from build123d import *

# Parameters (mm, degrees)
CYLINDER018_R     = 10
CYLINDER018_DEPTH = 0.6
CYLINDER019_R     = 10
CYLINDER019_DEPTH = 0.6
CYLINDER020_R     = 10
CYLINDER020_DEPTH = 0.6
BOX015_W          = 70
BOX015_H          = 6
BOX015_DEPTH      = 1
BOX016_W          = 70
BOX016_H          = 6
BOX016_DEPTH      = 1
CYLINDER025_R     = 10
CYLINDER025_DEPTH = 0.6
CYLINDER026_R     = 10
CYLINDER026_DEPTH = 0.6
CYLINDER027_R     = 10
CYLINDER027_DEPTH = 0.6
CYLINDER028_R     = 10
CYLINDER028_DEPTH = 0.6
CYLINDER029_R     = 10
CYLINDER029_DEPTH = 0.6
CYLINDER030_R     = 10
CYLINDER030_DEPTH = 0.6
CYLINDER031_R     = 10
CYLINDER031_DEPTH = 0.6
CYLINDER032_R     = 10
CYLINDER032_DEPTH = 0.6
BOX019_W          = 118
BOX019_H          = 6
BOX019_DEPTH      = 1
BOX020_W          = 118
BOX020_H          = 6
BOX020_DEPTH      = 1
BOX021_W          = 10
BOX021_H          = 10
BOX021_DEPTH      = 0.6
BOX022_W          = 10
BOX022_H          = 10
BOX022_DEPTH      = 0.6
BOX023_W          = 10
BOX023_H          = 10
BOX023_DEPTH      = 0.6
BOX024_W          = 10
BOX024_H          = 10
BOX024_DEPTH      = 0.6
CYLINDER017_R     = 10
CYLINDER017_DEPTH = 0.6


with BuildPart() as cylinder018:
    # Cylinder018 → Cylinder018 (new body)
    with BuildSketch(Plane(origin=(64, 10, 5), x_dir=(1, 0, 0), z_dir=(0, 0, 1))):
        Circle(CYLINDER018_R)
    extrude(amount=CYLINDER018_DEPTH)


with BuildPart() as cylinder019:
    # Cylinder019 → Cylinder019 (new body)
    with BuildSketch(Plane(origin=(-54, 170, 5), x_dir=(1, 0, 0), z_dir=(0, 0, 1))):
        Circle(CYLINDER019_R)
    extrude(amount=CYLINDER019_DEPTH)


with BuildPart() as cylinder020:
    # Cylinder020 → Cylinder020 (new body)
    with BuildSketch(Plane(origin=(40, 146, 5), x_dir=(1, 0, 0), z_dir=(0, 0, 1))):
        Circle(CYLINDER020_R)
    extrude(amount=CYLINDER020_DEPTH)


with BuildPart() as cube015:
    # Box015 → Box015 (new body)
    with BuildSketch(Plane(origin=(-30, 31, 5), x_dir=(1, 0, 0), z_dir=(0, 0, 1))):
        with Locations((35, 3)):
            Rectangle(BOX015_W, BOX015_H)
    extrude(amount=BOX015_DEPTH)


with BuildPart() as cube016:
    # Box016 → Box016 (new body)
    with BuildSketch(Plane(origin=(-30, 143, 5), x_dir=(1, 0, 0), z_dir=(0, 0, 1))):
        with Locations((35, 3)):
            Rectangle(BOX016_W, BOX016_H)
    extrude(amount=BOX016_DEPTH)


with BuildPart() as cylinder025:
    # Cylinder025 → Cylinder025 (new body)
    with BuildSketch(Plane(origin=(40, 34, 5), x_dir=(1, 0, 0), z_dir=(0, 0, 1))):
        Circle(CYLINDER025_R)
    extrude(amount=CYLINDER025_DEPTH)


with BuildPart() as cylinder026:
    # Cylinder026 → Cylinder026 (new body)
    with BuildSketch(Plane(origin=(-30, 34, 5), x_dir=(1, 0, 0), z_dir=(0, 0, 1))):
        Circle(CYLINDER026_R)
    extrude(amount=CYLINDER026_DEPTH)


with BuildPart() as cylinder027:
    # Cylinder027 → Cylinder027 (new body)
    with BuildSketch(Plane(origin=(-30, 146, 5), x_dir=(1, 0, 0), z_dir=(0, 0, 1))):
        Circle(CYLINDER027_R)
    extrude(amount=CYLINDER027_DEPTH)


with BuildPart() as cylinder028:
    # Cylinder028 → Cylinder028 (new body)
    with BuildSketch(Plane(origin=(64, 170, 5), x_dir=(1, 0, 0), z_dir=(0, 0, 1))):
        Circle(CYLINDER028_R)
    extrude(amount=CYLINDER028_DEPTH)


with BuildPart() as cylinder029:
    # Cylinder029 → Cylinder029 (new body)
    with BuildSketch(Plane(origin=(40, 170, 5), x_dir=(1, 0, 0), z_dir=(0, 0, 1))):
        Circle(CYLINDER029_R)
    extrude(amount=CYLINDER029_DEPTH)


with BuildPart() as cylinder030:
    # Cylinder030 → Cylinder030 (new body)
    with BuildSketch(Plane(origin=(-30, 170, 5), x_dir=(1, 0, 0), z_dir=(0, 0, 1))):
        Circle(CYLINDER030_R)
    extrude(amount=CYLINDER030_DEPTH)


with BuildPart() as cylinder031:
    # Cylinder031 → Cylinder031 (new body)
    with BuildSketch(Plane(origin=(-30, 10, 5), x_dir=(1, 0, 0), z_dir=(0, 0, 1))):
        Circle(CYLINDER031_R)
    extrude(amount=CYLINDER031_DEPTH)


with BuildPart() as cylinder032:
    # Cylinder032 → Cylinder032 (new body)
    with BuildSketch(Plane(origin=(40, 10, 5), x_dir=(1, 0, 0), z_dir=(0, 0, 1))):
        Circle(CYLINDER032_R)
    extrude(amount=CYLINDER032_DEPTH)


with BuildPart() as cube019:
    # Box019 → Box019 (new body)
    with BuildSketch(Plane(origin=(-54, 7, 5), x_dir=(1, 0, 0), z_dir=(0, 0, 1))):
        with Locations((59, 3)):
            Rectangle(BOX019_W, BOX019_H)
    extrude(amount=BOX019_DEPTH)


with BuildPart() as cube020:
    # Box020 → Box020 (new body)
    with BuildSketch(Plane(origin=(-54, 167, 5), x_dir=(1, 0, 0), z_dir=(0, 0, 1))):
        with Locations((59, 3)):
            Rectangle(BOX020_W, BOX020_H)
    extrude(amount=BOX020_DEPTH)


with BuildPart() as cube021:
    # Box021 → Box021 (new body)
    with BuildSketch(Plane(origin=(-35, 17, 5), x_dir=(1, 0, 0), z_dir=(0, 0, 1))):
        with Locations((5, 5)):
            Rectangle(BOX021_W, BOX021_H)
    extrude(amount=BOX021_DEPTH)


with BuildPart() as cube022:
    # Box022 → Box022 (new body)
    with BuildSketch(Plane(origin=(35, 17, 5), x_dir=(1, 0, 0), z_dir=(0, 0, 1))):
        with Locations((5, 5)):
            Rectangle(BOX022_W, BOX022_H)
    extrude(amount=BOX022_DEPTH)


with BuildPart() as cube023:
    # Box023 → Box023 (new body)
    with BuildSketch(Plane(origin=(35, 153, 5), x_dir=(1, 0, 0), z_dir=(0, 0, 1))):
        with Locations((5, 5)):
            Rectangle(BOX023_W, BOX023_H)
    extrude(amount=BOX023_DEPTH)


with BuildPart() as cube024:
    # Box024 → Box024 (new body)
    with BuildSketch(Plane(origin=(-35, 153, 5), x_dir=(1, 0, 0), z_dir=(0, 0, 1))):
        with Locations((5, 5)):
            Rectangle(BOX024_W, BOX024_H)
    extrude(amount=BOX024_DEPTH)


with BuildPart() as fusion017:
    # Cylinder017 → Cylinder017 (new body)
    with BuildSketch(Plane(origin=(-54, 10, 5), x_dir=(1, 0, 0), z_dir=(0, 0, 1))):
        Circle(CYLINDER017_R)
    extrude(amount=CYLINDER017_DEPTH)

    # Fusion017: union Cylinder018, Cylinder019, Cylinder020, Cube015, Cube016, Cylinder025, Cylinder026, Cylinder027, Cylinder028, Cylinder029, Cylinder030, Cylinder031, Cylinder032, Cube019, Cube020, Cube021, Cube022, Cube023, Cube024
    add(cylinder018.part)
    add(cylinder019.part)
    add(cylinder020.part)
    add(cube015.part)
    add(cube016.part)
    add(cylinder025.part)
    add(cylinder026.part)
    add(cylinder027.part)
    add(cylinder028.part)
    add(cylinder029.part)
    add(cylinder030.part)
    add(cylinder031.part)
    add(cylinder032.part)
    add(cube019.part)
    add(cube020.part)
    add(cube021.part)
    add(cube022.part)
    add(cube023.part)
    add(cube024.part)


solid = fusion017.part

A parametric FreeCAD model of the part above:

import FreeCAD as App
import Part
import Sketcher

V = App.Vector

doc = App.newDocument("Part")
body = doc.addObject("PartDesign::Body", "Body")

sketch1 = body.newObject("Sketcher::SketchObject", "Sketch")
sketch1.AttachmentSupport = (doc.getObject("XY_Plane"), [""])
sketch1.MapMode = "FlatFace"
sketch1.AttachmentOffset = App.Placement(V(0, 0, 5), App.Rotation())
sketch1.addGeometry(Part.Circle(V(64, 10, 0), V(0, 0, 1), 10), False)
sketch1.addConstraint(Sketcher.Constraint("Diameter", 0, 20.0))
sketch1.addConstraint(Sketcher.Constraint("DistanceX", -1, 1, 0, 3, 64.0))
sketch1.addConstraint(Sketcher.Constraint("DistanceY", -1, 1, 0, 3, 10.0))
pad1 = body.newObject("PartDesign::Pad", "Pad")
pad1.Profile = sketch1
pad1.Length = 0.6
body2 = doc.addObject("PartDesign::Body", "Body001")

sketch2 = body2.newObject("Sketcher::SketchObject", "Sketch001")
sketch2.AttachmentSupport = (doc.getObject("XY_Plane001"), [""])
sketch2.MapMode = "FlatFace"
sketch2.AttachmentOffset = App.Placement(V(0, 0, 5), App.Rotation())
sketch2.addGeometry(Part.Circle(V(-54, 170, 0), V(0, 0, 1), 10), False)
sketch2.addConstraint(Sketcher.Constraint("Diameter", 0, 20.0))
sketch2.addConstraint(Sketcher.Constraint("DistanceX", 0, 3, -1, 1, 54.0))
sketch2.addConstraint(Sketcher.Constraint("DistanceY", -1, 1, 0, 3, 170.0))
pad2 = body2.newObject("PartDesign::Pad", "Pad001")
pad2.Profile = sketch2
pad2.Length = 0.6
body3 = doc.addObject("PartDesign::Body", "Body002")

sketch3 = body3.newObject("Sketcher::SketchObject", "Sketch002")
sketch3.AttachmentSupport = (doc.getObject("XY_Plane002"), [""])
sketch3.MapMode = "FlatFace"
sketch3.AttachmentOffset = App.Placement(V(0, 0, 5), App.Rotation())
sketch3.addGeometry(Part.Circle(V(40, 146, 0), V(0, 0, 1), 10), False)
sketch3.addConstraint(Sketcher.Constraint("Diameter", 0, 20.0))
sketch3.addConstraint(Sketcher.Constraint("DistanceX", -1, 1, 0, 3, 40.0))
sketch3.addConstraint(Sketcher.Constraint("DistanceY", -1, 1, 0, 3, 146.0))
pad3 = body3.newObject("PartDesign::Pad", "Pad002")
pad3.Profile = sketch3
pad3.Length = 0.6
body4 = doc.addObject("PartDesign::Body", "Body003")

sketch4 = body4.newObject("Sketcher::SketchObject", "Sketch003")
sketch4.AttachmentSupport = (doc.getObject("XY_Plane003"), [""])
sketch4.MapMode = "FlatFace"
sketch4.AttachmentOffset = App.Placement(V(0, 0, 5), App.Rotation())
sketch4.addGeometry(Part.LineSegment(V(-30, 37, 0), V(-30, 31, 0)), False)
sketch4.addGeometry(Part.LineSegment(V(-30, 31, 0), V(40, 31, 0)), False)
sketch4.addGeometry(Part.LineSegment(V(40, 31, 0), V(40, 37, 0)), False)
sketch4.addGeometry(Part.LineSegment(V(40, 37, 0), V(-30, 37, 0)), False)
sketch4.addConstraint(Sketcher.Constraint("Coincident", 0, 2, 1, 1))
sketch4.addConstraint(Sketcher.Constraint("Coincident", 1, 2, 2, 1))
sketch4.addConstraint(Sketcher.Constraint("Coincident", 2, 2, 3, 1))
sketch4.addConstraint(Sketcher.Constraint("Coincident", 3, 2, 0, 1))
sketch4.addConstraint(Sketcher.Constraint("Vertical", 0))
sketch4.addConstraint(Sketcher.Constraint("Horizontal", 1))
sketch4.addConstraint(Sketcher.Constraint("Vertical", 2))
sketch4.addConstraint(Sketcher.Constraint("Horizontal", 3))
sketch4.addConstraint(Sketcher.Constraint("DistanceX", 1, 1, 1, 2, 70.0))
sketch4.addConstraint(Sketcher.Constraint("DistanceY", 0, 2, 0, 1, 6.0))
sketch4.addConstraint(Sketcher.Constraint("DistanceX", 0, 2, -1, 1, 30.0))
sketch4.addConstraint(Sketcher.Constraint("DistanceY", -1, 1, 0, 2, 31.0))
pad4 = body4.newObject("PartDesign::Pad", "Pad003")
pad4.Profile = sketch4
pad4.Length = 1
body5 = doc.addObject("PartDesign::Body", "Body004")

sketch5 = body5.newObject("Sketcher::SketchObject", "Sketch004")
sketch5.AttachmentSupport = (doc.getObject("XY_Plane004"), [""])
sketch5.MapMode = "FlatFace"
sketch5.AttachmentOffset = App.Placement(V(0, 0, 5), App.Rotation())
sketch5.addGeometry(Part.LineSegment(V(-30, 149, 0), V(-30, 143, 0)), False)
sketch5.addGeometry(Part.LineSegment(V(-30, 143, 0), V(40, 143, 0)), False)
sketch5.addGeometry(Part.LineSegment(V(40, 143, 0), V(40, 149, 0)), False)
sketch5.addGeometry(Part.LineSegment(V(40, 149, 0), V(-30, 149, 0)), False)
sketch5.addConstraint(Sketcher.Constraint("Coincident", 0, 2, 1, 1))
sketch5.addConstraint(Sketcher.Constraint("Coincident", 1, 2, 2, 1))
sketch5.addConstraint(Sketcher.Constraint("Coincident", 2, 2, 3, 1))
sketch5.addConstraint(Sketcher.Constraint("Coincident", 3, 2, 0, 1))
sketch5.addConstraint(Sketcher.Constraint("Vertical", 0))
sketch5.addConstraint(Sketcher.Constraint("Horizontal", 1))
sketch5.addConstraint(Sketcher.Constraint("Vertical", 2))
sketch5.addConstraint(Sketcher.Constraint("Horizontal", 3))
sketch5.addConstraint(Sketcher.Constraint("DistanceX", 1, 1, 1, 2, 70.0))
sketch5.addConstraint(Sketcher.Constraint("DistanceY", 0, 2, 0, 1, 6.0))
sketch5.addConstraint(Sketcher.Constraint("DistanceX", 0, 2, -1, 1, 30.0))
sketch5.addConstraint(Sketcher.Constraint("DistanceY", -1, 1, 0, 2, 143.0))
pad5 = body5.newObject("PartDesign::Pad", "Pad004")
pad5.Profile = sketch5
pad5.Length = 1
body6 = doc.addObject("PartDesign::Body", "Body005")

sketch6 = body6.newObject("Sketcher::SketchObject", "Sketch005")
sketch6.AttachmentSupport = (doc.getObject("XY_Plane005"), [""])
sketch6.MapMode = "FlatFace"
sketch6.AttachmentOffset = App.Placement(V(0, 0, 5), App.Rotation())
sketch6.addGeometry(Part.Circle(V(40, 34, 0), V(0, 0, 1), 10), False)
sketch6.addConstraint(Sketcher.Constraint("Diameter", 0, 20.0))
sketch6.addConstraint(Sketcher.Constraint("DistanceX", -1, 1, 0, 3, 40.0))
sketch6.addConstraint(Sketcher.Constraint("DistanceY", -1, 1, 0, 3, 34.0))
pad6 = body6.newObject("PartDesign::Pad", "Pad005")
pad6.Profile = sketch6
pad6.Length = 0.6
body7 = doc.addObject("PartDesign::Body", "Body006")

sketch7 = body7.newObject("Sketcher::SketchObject", "Sketch006")
sketch7.AttachmentSupport = (doc.getObject("XY_Plane006"), [""])
sketch7.MapMode = "FlatFace"
sketch7.AttachmentOffset = App.Placement(V(0, 0, 5), App.Rotation())
sketch7.addGeometry(Part.Circle(V(-30, 34, 0), V(0, 0, 1), 10), False)
sketch7.addConstraint(Sketcher.Constraint("Diameter", 0, 20.0))
sketch7.addConstraint(Sketcher.Constraint("DistanceX", 0, 3, -1, 1, 30.0))
sketch7.addConstraint(Sketcher.Constraint("DistanceY", -1, 1, 0, 3, 34.0))
pad7 = body7.newObject("PartDesign::Pad", "Pad006")
pad7.Profile = sketch7
pad7.Length = 0.6
body8 = doc.addObject("PartDesign::Body", "Body007")

sketch8 = body8.newObject("Sketcher::SketchObject", "Sketch007")
sketch8.AttachmentSupport = (doc.getObject("XY_Plane007"), [""])
sketch8.MapMode = "FlatFace"
sketch8.AttachmentOffset = App.Placement(V(0, 0, 5), App.Rotation())
sketch8.addGeometry(Part.Circle(V(-30, 146, 0), V(0, 0, 1), 10), False)
sketch8.addConstraint(Sketcher.Constraint("Diameter", 0, 20.0))
sketch8.addConstraint(Sketcher.Constraint("DistanceX", 0, 3, -1, 1, 30.0))
sketch8.addConstraint(Sketcher.Constraint("DistanceY", -1, 1, 0, 3, 146.0))
pad8 = body8.newObject("PartDesign::Pad", "Pad007")
pad8.Profile = sketch8
pad8.Length = 0.6
body9 = doc.addObject("PartDesign::Body", "Body008")

sketch9 = body9.newObject("Sketcher::SketchObject", "Sketch008")
sketch9.AttachmentSupport = (doc.getObject("XY_Plane008"), [""])
sketch9.MapMode = "FlatFace"
sketch9.AttachmentOffset = App.Placement(V(0, 0, 5), App.Rotation())
sketch9.addGeometry(Part.Circle(V(64, 170, 0), V(0, 0, 1), 10), False)
sketch9.addConstraint(Sketcher.Constraint("Diameter", 0, 20.0))
sketch9.addConstraint(Sketcher.Constraint("DistanceX", -1, 1, 0, 3, 64.0))
sketch9.addConstraint(Sketcher.Constraint("DistanceY", -1, 1, 0, 3, 170.0))
pad9 = body9.newObject("PartDesign::Pad", "Pad008")
pad9.Profile = sketch9
pad9.Length = 0.6
body10 = doc.addObject("PartDesign::Body", "Body009")

sketch10 = body10.newObject("Sketcher::SketchObject", "Sketch009")
sketch10.AttachmentSupport = (doc.getObject("XY_Plane009"), [""])
sketch10.MapMode = "FlatFace"
sketch10.AttachmentOffset = App.Placement(V(0, 0, 5), App.Rotation())
sketch10.addGeometry(Part.Circle(V(40, 170, 0), V(0, 0, 1), 10), False)
sketch10.addConstraint(Sketcher.Constraint("Diameter", 0, 20.0))
sketch10.addConstraint(Sketcher.Constraint("DistanceX", -1, 1, 0, 3, 40.0))
sketch10.addConstraint(Sketcher.Constraint("DistanceY", -1, 1, 0, 3, 170.0))
pad10 = body10.newObject("PartDesign::Pad", "Pad009")
pad10.Profile = sketch10
pad10.Length = 0.6
body11 = doc.addObject("PartDesign::Body", "Body010")

sketch11 = body11.newObject("Sketcher::SketchObject", "Sketch010")
sketch11.AttachmentSupport = (doc.getObject("XY_Plane010"), [""])
sketch11.MapMode = "FlatFace"
sketch11.AttachmentOffset = App.Placement(V(0, 0, 5), App.Rotation())
sketch11.addGeometry(Part.Circle(V(-30, 170, 0), V(0, 0, 1), 10), False)
sketch11.addConstraint(Sketcher.Constraint("Diameter", 0, 20.0))
sketch11.addConstraint(Sketcher.Constraint("DistanceX", 0, 3, -1, 1, 30.0))
sketch11.addConstraint(Sketcher.Constraint("DistanceY", -1, 1, 0, 3, 170.0))
pad11 = body11.newObject("PartDesign::Pad", "Pad010")
pad11.Profile = sketch11
pad11.Length = 0.6
body12 = doc.addObject("PartDesign::Body", "Body011")

sketch12 = body12.newObject("Sketcher::SketchObject", "Sketch011")
sketch12.AttachmentSupport = (doc.getObject("XY_Plane011"), [""])
sketch12.MapMode = "FlatFace"
sketch12.AttachmentOffset = App.Placement(V(0, 0, 5), App.Rotation())
sketch12.addGeometry(Part.Circle(V(-30, 10, 0), V(0, 0, 1), 10), False)
sketch12.addConstraint(Sketcher.Constraint("Diameter", 0, 20.0))
sketch12.addConstraint(Sketcher.Constraint("DistanceX", 0, 3, -1, 1, 30.0))
sketch12.addConstraint(Sketcher.Constraint("DistanceY", -1, 1, 0, 3, 10.0))
pad12 = body12.newObject("PartDesign::Pad", "Pad011")
pad12.Profile = sketch12
pad12.Length = 0.6
body13 = doc.addObject("PartDesign::Body", "Body012")

sketch13 = body13.newObject("Sketcher::SketchObject", "Sketch012")
sketch13.AttachmentSupport = (doc.getObject("XY_Plane012"), [""])
sketch13.MapMode = "FlatFace"
sketch13.AttachmentOffset = App.Placement(V(0, 0, 5), App.Rotation())
sketch13.addGeometry(Part.Circle(V(40, 10, 0), V(0, 0, 1), 10), False)
sketch13.addConstraint(Sketcher.Constraint("Diameter", 0, 20.0))
sketch13.addConstraint(Sketcher.Constraint("DistanceX", -1, 1, 0, 3, 40.0))
sketch13.addConstraint(Sketcher.Constraint("DistanceY", -1, 1, 0, 3, 10.0))
pad13 = body13.newObject("PartDesign::Pad", "Pad012")
pad13.Profile = sketch13
pad13.Length = 0.6
body14 = doc.addObject("PartDesign::Body", "Body013")

sketch14 = body14.newObject("Sketcher::SketchObject", "Sketch013")
sketch14.AttachmentSupport = (doc.getObject("XY_Plane013"), [""])
sketch14.MapMode = "FlatFace"
sketch14.AttachmentOffset = App.Placement(V(0, 0, 5), App.Rotation())
sketch14.addGeometry(Part.LineSegment(V(-54, 13, 0), V(-54, 7, 0)), False)
sketch14.addGeometry(Part.LineSegment(V(-54, 7, 0), V(64, 7, 0)), False)
sketch14.addGeometry(Part.LineSegment(V(64, 7, 0), V(64, 13, 0)), False)
sketch14.addGeometry(Part.LineSegment(V(64, 13, 0), V(-54, 13, 0)), False)
sketch14.addConstraint(Sketcher.Constraint("Coincident", 0, 2, 1, 1))
sketch14.addConstraint(Sketcher.Constraint("Coincident", 1, 2, 2, 1))
sketch14.addConstraint(Sketcher.Constraint("Coincident", 2, 2, 3, 1))
sketch14.addConstraint(Sketcher.Constraint("Coincident", 3, 2, 0, 1))
sketch14.addConstraint(Sketcher.Constraint("Vertical", 0))
sketch14.addConstraint(Sketcher.Constraint("Horizontal", 1))
sketch14.addConstraint(Sketcher.Constraint("Vertical", 2))
sketch14.addConstraint(Sketcher.Constraint("Horizontal", 3))
sketch14.addConstraint(Sketcher.Constraint("DistanceX", 1, 1, 1, 2, 118.0))
sketch14.addConstraint(Sketcher.Constraint("DistanceY", 0, 2, 0, 1, 6.0))
sketch14.addConstraint(Sketcher.Constraint("DistanceX", 0, 2, -1, 1, 54.0))
sketch14.addConstraint(Sketcher.Constraint("DistanceY", -1, 1, 0, 2, 7.0))
pad14 = body14.newObject("PartDesign::Pad", "Pad013")
pad14.Profile = sketch14
pad14.Length = 1
body15 = doc.addObject("PartDesign::Body", "Body014")

sketch15 = body15.newObject("Sketcher::SketchObject", "Sketch014")
sketch15.AttachmentSupport = (doc.getObject("XY_Plane014"), [""])
sketch15.MapMode = "FlatFace"
sketch15.AttachmentOffset = App.Placement(V(0, 0, 5), App.Rotation())
sketch15.addGeometry(Part.LineSegment(V(-54, 173, 0), V(-54, 167, 0)), False)
sketch15.addGeometry(Part.LineSegment(V(-54, 167, 0), V(64, 167, 0)), False)
sketch15.addGeometry(Part.LineSegment(V(64, 167, 0), V(64, 173, 0)), False)
sketch15.addGeometry(Part.LineSegment(V(64, 173, 0), V(-54, 173, 0)), False)
sketch15.addConstraint(Sketcher.Constraint("Coincident", 0, 2, 1, 1))
sketch15.addConstraint(Sketcher.Constraint("Coincident", 1, 2, 2, 1))
sketch15.addConstraint(Sketcher.Constraint("Coincident", 2, 2, 3, 1))
sketch15.addConstraint(Sketcher.Constraint("Coincident", 3, 2, 0, 1))
sketch15.addConstraint(Sketcher.Constraint("Vertical", 0))
sketch15.addConstraint(Sketcher.Constraint("Horizontal", 1))
sketch15.addConstraint(Sketcher.Constraint("Vertical", 2))
sketch15.addConstraint(Sketcher.Constraint("Horizontal", 3))
sketch15.addConstraint(Sketcher.Constraint("DistanceX", 1, 1, 1, 2, 118.0))
sketch15.addConstraint(Sketcher.Constraint("DistanceY", 0, 2, 0, 1, 6.0))
sketch15.addConstraint(Sketcher.Constraint("DistanceX", 0, 2, -1, 1, 54.0))
sketch15.addConstraint(Sketcher.Constraint("DistanceY", -1, 1, 0, 2, 167.0))
pad15 = body15.newObject("PartDesign::Pad", "Pad014")
pad15.Profile = sketch15
pad15.Length = 1
body16 = doc.addObject("PartDesign::Body", "Body015")

sketch16 = body16.newObject("Sketcher::SketchObject", "Sketch015")
sketch16.AttachmentSupport = (doc.getObject("XY_Plane015"), [""])
sketch16.MapMode = "FlatFace"
sketch16.AttachmentOffset = App.Placement(V(0, 0, 5), App.Rotation())
sketch16.addGeometry(Part.LineSegment(V(-35, 27, 0), V(-35, 17, 0)), False)
sketch16.addGeometry(Part.LineSegment(V(-35, 17, 0), V(-25, 17, 0)), False)
sketch16.addGeometry(Part.LineSegment(V(-25, 17, 0), V(-25, 27, 0)), False)
sketch16.addGeometry(Part.LineSegment(V(-25, 27, 0), V(-35, 27, 0)), False)
sketch16.addConstraint(Sketcher.Constraint("Coincident", 0, 2, 1, 1))
sketch16.addConstraint(Sketcher.Constraint("Coincident", 1, 2, 2, 1))
sketch16.addConstraint(Sketcher.Constraint("Coincident", 2, 2, 3, 1))
sketch16.addConstraint(Sketcher.Constraint("Coincident", 3, 2, 0, 1))
sketch16.addConstraint(Sketcher.Constraint("Vertical", 0))
sketch16.addConstraint(Sketcher.Constraint("Horizontal", 1))
sketch16.addConstraint(Sketcher.Constraint("Vertical", 2))
sketch16.addConstraint(Sketcher.Constraint("Horizontal", 3))
sketch16.addConstraint(Sketcher.Constraint("Equal", 3, 0))
sketch16.addConstraint(Sketcher.Constraint("DistanceX", 1, 1, 1, 2, 10.0))
sketch16.addConstraint(Sketcher.Constraint("DistanceX", 0, 2, -1, 1, 35.0))
sketch16.addConstraint(Sketcher.Constraint("DistanceY", -1, 1, 0, 2, 17.0))
pad16 = body16.newObject("PartDesign::Pad", "Pad015")
pad16.Profile = sketch16
pad16.Length = 0.6
body17 = doc.addObject("PartDesign::Body", "Body016")

sketch17 = body17.newObject("Sketcher::SketchObject", "Sketch016")
sketch17.AttachmentSupport = (doc.getObject("XY_Plane016"), [""])
sketch17.MapMode = "FlatFace"
sketch17.AttachmentOffset = App.Placement(V(0, 0, 5), App.Rotation())
sketch17.addGeometry(Part.LineSegment(V(35, 27, 0), V(35, 17, 0)), False)
sketch17.addGeometry(Part.LineSegment(V(35, 17, 0), V(45, 17, 0)), False)
sketch17.addGeometry(Part.LineSegment(V(45, 17, 0), V(45, 27, 0)), False)
sketch17.addGeometry(Part.LineSegment(V(45, 27, 0), V(35, 27, 0)), False)
sketch17.addConstraint(Sketcher.Constraint("Coincident", 0, 2, 1, 1))
sketch17.addConstraint(Sketcher.Constraint("Coincident", 1, 2, 2, 1))
sketch17.addConstraint(Sketcher.Constraint("Coincident", 2, 2, 3, 1))
sketch17.addConstraint(Sketcher.Constraint("Coincident", 3, 2, 0, 1))
sketch17.addConstraint(Sketcher.Constraint("Vertical", 0))
sketch17.addConstraint(Sketcher.Constraint("Horizontal", 1))
sketch17.addConstraint(Sketcher.Constraint("Vertical", 2))
sketch17.addConstraint(Sketcher.Constraint("Horizontal", 3))
sketch17.addConstraint(Sketcher.Constraint("Equal", 3, 0))
sketch17.addConstraint(Sketcher.Constraint("DistanceX", 1, 1, 1, 2, 10.0))
sketch17.addConstraint(Sketcher.Constraint("DistanceX", -1, 1, 0, 2, 35.0))
sketch17.addConstraint(Sketcher.Constraint("DistanceY", -1, 1, 0, 2, 17.0))
pad17 = body17.newObject("PartDesign::Pad", "Pad016")
pad17.Profile = sketch17
pad17.Length = 0.6
body18 = doc.addObject("PartDesign::Body", "Body017")

sketch18 = body18.newObject("Sketcher::SketchObject", "Sketch017")
sketch18.AttachmentSupport = (doc.getObject("XY_Plane017"), [""])
sketch18.MapMode = "FlatFace"
sketch18.AttachmentOffset = App.Placement(V(0, 0, 5), App.Rotation())
sketch18.addGeometry(Part.LineSegment(V(35, 163, 0), V(35, 153, 0)), False)
sketch18.addGeometry(Part.LineSegment(V(35, 153, 0), V(45, 153, 0)), False)
sketch18.addGeometry(Part.LineSegment(V(45, 153, 0), V(45, 163, 0)), False)
sketch18.addGeometry(Part.LineSegment(V(45, 163, 0), V(35, 163, 0)), False)
sketch18.addConstraint(Sketcher.Constraint("Coincident", 0, 2, 1, 1))
sketch18.addConstraint(Sketcher.Constraint("Coincident", 1, 2, 2, 1))
sketch18.addConstraint(Sketcher.Constraint("Coincident", 2, 2, 3, 1))
sketch18.addConstraint(Sketcher.Constraint("Coincident", 3, 2, 0, 1))
sketch18.addConstraint(Sketcher.Constraint("Vertical", 0))
sketch18.addConstraint(Sketcher.Constraint("Horizontal", 1))
sketch18.addConstraint(Sketcher.Constraint("Vertical", 2))
sketch18.addConstraint(Sketcher.Constraint("Horizontal", 3))
sketch18.addConstraint(Sketcher.Constraint("Equal", 3, 0))
sketch18.addConstraint(Sketcher.Constraint("DistanceX", 1, 1, 1, 2, 10.0))
sketch18.addConstraint(Sketcher.Constraint("DistanceX", -1, 1, 0, 2, 35.0))
sketch18.addConstraint(Sketcher.Constraint("DistanceY", -1, 1, 0, 2, 153.0))
pad18 = body18.newObject("PartDesign::Pad", "Pad017")
pad18.Profile = sketch18
pad18.Length = 0.6
body19 = doc.addObject("PartDesign::Body", "Body018")

sketch19 = body19.newObject("Sketcher::SketchObject", "Sketch018")
sketch19.AttachmentSupport = (doc.getObject("XY_Plane018"), [""])
sketch19.MapMode = "FlatFace"
sketch19.AttachmentOffset = App.Placement(V(0, 0, 5), App.Rotation())
sketch19.addGeometry(Part.LineSegment(V(-35, 163, 0), V(-35, 153, 0)), False)
sketch19.addGeometry(Part.LineSegment(V(-35, 153, 0), V(-25, 153, 0)), False)
sketch19.addGeometry(Part.LineSegment(V(-25, 153, 0), V(-25, 163, 0)), False)
sketch19.addGeometry(Part.LineSegment(V(-25, 163, 0), V(-35, 163, 0)), False)
sketch19.addConstraint(Sketcher.Constraint("Coincident", 0, 2, 1, 1))
sketch19.addConstraint(Sketcher.Constraint("Coincident", 1, 2, 2, 1))
sketch19.addConstraint(Sketcher.Constraint("Coincident", 2, 2, 3, 1))
sketch19.addConstraint(Sketcher.Constraint("Coincident", 3, 2, 0, 1))
sketch19.addConstraint(Sketcher.Constraint("Vertical", 0))
sketch19.addConstraint(Sketcher.Constraint("Horizontal", 1))
sketch19.addConstraint(Sketcher.Constraint("Vertical", 2))
sketch19.addConstraint(Sketcher.Constraint("Horizontal", 3))
sketch19.addConstraint(Sketcher.Constraint("Equal", 3, 0))
sketch19.addConstraint(Sketcher.Constraint("DistanceX", 1, 1, 1, 2, 10.0))
sketch19.addConstraint(Sketcher.Constraint("DistanceX", 0, 2, -1, 1, 35.0))
sketch19.addConstraint(Sketcher.Constraint("DistanceY", -1, 1, 0, 2, 153.0))
pad19 = body19.newObject("PartDesign::Pad", "Pad018")
pad19.Profile = sketch19
pad19.Length = 0.6
body20 = doc.addObject("PartDesign::Body", "Body019")
body20.AllowCompound = True

sketch20 = body20.newObject("Sketcher::SketchObject", "Sketch019")
sketch20.AttachmentSupport = (doc.getObject("XY_Plane019"), [""])
sketch20.MapMode = "FlatFace"
sketch20.AttachmentOffset = App.Placement(V(0, 0, 5), App.Rotation())
sketch20.addGeometry(Part.Circle(V(-54, 10, 0), V(0, 0, 1), 10), False)
sketch20.addConstraint(Sketcher.Constraint("Diameter", 0, 20.0))
sketch20.addConstraint(Sketcher.Constraint("DistanceX", 0, 3, -1, 1, 54.0))
sketch20.addConstraint(Sketcher.Constraint("DistanceY", -1, 1, 0, 3, 10.0))
pad20 = body20.newObject("PartDesign::Pad", "Pad019")
pad20.Profile = sketch20
pad20.Length = 0.6
doc.recompute()

boolean = body20.newObject("PartDesign::Boolean", "Boolean")
boolean.Type = "Fuse"
boolean.addObjects([body])
doc.recompute()

boolean2 = body20.newObject("PartDesign::Boolean", "Boolean001")
boolean2.Type = "Fuse"
boolean2.addObjects([body2])
doc.recompute()

boolean3 = body20.newObject("PartDesign::Boolean", "Boolean002")
boolean3.Type = "Fuse"
boolean3.addObjects([body3])
doc.recompute()

boolean4 = body20.newObject("PartDesign::Boolean", "Boolean003")
boolean4.Type = "Fuse"
boolean4.addObjects([body4])
doc.recompute()

boolean5 = body20.newObject("PartDesign::Boolean", "Boolean004")
boolean5.Type = "Fuse"
boolean5.addObjects([body5])
doc.recompute()

boolean6 = body20.newObject("PartDesign::Boolean", "Boolean005")
boolean6.Type = "Fuse"
boolean6.addObjects([body6])
doc.recompute()

boolean7 = body20.newObject("PartDesign::Boolean", "Boolean006")
boolean7.Type = "Fuse"
boolean7.addObjects([body7])
doc.recompute()

boolean8 = body20.newObject("PartDesign::Boolean", "Boolean007")
boolean8.Type = "Fuse"
boolean8.addObjects([body8])
doc.recompute()

boolean9 = body20.newObject("PartDesign::Boolean", "Boolean008")
boolean9.Type = "Fuse"
boolean9.addObjects([body9])
doc.recompute()

boolean10 = body20.newObject("PartDesign::Boolean", "Boolean009")
boolean10.Type = "Fuse"
boolean10.addObjects([body10])
doc.recompute()

boolean11 = body20.newObject("PartDesign::Boolean", "Boolean010")
boolean11.Type = "Fuse"
boolean11.addObjects([body11])
doc.recompute()

boolean12 = body20.newObject("PartDesign::Boolean", "Boolean011")
boolean12.Type = "Fuse"
boolean12.addObjects([body12])
doc.recompute()

boolean13 = body20.newObject("PartDesign::Boolean", "Boolean012")
boolean13.Type = "Fuse"
boolean13.addObjects([body13])
doc.recompute()

boolean14 = body20.newObject("PartDesign::Boolean", "Boolean013")
boolean14.Type = "Fuse"
boolean14.addObjects([body14])
doc.recompute()

boolean15 = body20.newObject("PartDesign::Boolean", "Boolean014")
boolean15.Type = "Fuse"
boolean15.addObjects([body15])
doc.recompute()

boolean16 = body20.newObject("PartDesign::Boolean", "Boolean015")
boolean16.Type = "Fuse"
boolean16.addObjects([body16])
doc.recompute()

boolean17 = body20.newObject("PartDesign::Boolean", "Boolean016")
boolean17.Type = "Fuse"
boolean17.addObjects([body17])
doc.recompute()

boolean18 = body20.newObject("PartDesign::Boolean", "Boolean017")
boolean18.Type = "Fuse"
boolean18.addObjects([body18])
doc.recompute()

boolean19 = body20.newObject("PartDesign::Boolean", "Boolean018")
boolean19.Type = "Fuse"
boolean19.addObjects([body19])

doc.recompute()
